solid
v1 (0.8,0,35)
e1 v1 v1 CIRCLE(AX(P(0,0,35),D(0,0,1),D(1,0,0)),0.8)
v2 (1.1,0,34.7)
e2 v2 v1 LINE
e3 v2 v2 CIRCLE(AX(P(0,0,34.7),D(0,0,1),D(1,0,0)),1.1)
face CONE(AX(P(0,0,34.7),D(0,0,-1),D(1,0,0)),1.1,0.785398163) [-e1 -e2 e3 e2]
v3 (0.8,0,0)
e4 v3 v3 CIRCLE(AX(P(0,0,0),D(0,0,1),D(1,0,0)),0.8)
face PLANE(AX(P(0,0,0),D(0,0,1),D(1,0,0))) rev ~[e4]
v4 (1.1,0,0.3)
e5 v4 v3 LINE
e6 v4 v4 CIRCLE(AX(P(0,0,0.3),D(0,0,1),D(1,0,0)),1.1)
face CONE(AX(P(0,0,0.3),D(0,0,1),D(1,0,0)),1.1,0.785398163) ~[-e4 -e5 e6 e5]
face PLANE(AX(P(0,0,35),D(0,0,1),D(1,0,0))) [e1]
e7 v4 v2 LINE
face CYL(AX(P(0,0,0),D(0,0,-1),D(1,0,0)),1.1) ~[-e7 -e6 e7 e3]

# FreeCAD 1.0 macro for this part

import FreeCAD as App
import Part
import Sketcher
from FreeCAD import Vector
Q = App.Units.Quantity


def edges_at(feature, points):
    """Names of the edges that pass closest to the given points."""
    edges = feature.Shape.Edges
    near = lambda p: min(range(len(edges)), key=lambda i: edges[i].distToShape(Part.Vertex(*p))[0])
    return sorted({f"Edge{near(p) + 1}" for p in points})

doc = App.newDocument("Part")
body = doc.addObject("PartDesign::Body", "Body")

sketch1 = body.newObject("Sketcher::SketchObject", "Sketch")
sketch1.AttachmentSupport = (doc.getObject("XY_Plane"), [""])
sketch1.MapMode = "FlatFace"
sketch1.addGeometry(Part.Circle(Vector(0, 0, 0), Vector(0, 0, 1), 1.1), False)
sketch1.addConstraint([
    Sketcher.Constraint("Coincident", 0, 3, -1, 1),
    Sketcher.Constraint("Diameter", 0, Q("2.2 mm")),
])
pad1 = body.newObject("PartDesign::Pad", "Pad")
pad1.Profile = sketch1
pad1.Length = 35
doc.recompute()

chamfer = body.newObject("PartDesign::Chamfer", "Chamfer")
chamfer.Base = (pad1, edges_at(pad1, [(-1.1, 0, 0), (-1.1, 0, 35)]))
chamfer.Size = 0.3

doc.recompute()
